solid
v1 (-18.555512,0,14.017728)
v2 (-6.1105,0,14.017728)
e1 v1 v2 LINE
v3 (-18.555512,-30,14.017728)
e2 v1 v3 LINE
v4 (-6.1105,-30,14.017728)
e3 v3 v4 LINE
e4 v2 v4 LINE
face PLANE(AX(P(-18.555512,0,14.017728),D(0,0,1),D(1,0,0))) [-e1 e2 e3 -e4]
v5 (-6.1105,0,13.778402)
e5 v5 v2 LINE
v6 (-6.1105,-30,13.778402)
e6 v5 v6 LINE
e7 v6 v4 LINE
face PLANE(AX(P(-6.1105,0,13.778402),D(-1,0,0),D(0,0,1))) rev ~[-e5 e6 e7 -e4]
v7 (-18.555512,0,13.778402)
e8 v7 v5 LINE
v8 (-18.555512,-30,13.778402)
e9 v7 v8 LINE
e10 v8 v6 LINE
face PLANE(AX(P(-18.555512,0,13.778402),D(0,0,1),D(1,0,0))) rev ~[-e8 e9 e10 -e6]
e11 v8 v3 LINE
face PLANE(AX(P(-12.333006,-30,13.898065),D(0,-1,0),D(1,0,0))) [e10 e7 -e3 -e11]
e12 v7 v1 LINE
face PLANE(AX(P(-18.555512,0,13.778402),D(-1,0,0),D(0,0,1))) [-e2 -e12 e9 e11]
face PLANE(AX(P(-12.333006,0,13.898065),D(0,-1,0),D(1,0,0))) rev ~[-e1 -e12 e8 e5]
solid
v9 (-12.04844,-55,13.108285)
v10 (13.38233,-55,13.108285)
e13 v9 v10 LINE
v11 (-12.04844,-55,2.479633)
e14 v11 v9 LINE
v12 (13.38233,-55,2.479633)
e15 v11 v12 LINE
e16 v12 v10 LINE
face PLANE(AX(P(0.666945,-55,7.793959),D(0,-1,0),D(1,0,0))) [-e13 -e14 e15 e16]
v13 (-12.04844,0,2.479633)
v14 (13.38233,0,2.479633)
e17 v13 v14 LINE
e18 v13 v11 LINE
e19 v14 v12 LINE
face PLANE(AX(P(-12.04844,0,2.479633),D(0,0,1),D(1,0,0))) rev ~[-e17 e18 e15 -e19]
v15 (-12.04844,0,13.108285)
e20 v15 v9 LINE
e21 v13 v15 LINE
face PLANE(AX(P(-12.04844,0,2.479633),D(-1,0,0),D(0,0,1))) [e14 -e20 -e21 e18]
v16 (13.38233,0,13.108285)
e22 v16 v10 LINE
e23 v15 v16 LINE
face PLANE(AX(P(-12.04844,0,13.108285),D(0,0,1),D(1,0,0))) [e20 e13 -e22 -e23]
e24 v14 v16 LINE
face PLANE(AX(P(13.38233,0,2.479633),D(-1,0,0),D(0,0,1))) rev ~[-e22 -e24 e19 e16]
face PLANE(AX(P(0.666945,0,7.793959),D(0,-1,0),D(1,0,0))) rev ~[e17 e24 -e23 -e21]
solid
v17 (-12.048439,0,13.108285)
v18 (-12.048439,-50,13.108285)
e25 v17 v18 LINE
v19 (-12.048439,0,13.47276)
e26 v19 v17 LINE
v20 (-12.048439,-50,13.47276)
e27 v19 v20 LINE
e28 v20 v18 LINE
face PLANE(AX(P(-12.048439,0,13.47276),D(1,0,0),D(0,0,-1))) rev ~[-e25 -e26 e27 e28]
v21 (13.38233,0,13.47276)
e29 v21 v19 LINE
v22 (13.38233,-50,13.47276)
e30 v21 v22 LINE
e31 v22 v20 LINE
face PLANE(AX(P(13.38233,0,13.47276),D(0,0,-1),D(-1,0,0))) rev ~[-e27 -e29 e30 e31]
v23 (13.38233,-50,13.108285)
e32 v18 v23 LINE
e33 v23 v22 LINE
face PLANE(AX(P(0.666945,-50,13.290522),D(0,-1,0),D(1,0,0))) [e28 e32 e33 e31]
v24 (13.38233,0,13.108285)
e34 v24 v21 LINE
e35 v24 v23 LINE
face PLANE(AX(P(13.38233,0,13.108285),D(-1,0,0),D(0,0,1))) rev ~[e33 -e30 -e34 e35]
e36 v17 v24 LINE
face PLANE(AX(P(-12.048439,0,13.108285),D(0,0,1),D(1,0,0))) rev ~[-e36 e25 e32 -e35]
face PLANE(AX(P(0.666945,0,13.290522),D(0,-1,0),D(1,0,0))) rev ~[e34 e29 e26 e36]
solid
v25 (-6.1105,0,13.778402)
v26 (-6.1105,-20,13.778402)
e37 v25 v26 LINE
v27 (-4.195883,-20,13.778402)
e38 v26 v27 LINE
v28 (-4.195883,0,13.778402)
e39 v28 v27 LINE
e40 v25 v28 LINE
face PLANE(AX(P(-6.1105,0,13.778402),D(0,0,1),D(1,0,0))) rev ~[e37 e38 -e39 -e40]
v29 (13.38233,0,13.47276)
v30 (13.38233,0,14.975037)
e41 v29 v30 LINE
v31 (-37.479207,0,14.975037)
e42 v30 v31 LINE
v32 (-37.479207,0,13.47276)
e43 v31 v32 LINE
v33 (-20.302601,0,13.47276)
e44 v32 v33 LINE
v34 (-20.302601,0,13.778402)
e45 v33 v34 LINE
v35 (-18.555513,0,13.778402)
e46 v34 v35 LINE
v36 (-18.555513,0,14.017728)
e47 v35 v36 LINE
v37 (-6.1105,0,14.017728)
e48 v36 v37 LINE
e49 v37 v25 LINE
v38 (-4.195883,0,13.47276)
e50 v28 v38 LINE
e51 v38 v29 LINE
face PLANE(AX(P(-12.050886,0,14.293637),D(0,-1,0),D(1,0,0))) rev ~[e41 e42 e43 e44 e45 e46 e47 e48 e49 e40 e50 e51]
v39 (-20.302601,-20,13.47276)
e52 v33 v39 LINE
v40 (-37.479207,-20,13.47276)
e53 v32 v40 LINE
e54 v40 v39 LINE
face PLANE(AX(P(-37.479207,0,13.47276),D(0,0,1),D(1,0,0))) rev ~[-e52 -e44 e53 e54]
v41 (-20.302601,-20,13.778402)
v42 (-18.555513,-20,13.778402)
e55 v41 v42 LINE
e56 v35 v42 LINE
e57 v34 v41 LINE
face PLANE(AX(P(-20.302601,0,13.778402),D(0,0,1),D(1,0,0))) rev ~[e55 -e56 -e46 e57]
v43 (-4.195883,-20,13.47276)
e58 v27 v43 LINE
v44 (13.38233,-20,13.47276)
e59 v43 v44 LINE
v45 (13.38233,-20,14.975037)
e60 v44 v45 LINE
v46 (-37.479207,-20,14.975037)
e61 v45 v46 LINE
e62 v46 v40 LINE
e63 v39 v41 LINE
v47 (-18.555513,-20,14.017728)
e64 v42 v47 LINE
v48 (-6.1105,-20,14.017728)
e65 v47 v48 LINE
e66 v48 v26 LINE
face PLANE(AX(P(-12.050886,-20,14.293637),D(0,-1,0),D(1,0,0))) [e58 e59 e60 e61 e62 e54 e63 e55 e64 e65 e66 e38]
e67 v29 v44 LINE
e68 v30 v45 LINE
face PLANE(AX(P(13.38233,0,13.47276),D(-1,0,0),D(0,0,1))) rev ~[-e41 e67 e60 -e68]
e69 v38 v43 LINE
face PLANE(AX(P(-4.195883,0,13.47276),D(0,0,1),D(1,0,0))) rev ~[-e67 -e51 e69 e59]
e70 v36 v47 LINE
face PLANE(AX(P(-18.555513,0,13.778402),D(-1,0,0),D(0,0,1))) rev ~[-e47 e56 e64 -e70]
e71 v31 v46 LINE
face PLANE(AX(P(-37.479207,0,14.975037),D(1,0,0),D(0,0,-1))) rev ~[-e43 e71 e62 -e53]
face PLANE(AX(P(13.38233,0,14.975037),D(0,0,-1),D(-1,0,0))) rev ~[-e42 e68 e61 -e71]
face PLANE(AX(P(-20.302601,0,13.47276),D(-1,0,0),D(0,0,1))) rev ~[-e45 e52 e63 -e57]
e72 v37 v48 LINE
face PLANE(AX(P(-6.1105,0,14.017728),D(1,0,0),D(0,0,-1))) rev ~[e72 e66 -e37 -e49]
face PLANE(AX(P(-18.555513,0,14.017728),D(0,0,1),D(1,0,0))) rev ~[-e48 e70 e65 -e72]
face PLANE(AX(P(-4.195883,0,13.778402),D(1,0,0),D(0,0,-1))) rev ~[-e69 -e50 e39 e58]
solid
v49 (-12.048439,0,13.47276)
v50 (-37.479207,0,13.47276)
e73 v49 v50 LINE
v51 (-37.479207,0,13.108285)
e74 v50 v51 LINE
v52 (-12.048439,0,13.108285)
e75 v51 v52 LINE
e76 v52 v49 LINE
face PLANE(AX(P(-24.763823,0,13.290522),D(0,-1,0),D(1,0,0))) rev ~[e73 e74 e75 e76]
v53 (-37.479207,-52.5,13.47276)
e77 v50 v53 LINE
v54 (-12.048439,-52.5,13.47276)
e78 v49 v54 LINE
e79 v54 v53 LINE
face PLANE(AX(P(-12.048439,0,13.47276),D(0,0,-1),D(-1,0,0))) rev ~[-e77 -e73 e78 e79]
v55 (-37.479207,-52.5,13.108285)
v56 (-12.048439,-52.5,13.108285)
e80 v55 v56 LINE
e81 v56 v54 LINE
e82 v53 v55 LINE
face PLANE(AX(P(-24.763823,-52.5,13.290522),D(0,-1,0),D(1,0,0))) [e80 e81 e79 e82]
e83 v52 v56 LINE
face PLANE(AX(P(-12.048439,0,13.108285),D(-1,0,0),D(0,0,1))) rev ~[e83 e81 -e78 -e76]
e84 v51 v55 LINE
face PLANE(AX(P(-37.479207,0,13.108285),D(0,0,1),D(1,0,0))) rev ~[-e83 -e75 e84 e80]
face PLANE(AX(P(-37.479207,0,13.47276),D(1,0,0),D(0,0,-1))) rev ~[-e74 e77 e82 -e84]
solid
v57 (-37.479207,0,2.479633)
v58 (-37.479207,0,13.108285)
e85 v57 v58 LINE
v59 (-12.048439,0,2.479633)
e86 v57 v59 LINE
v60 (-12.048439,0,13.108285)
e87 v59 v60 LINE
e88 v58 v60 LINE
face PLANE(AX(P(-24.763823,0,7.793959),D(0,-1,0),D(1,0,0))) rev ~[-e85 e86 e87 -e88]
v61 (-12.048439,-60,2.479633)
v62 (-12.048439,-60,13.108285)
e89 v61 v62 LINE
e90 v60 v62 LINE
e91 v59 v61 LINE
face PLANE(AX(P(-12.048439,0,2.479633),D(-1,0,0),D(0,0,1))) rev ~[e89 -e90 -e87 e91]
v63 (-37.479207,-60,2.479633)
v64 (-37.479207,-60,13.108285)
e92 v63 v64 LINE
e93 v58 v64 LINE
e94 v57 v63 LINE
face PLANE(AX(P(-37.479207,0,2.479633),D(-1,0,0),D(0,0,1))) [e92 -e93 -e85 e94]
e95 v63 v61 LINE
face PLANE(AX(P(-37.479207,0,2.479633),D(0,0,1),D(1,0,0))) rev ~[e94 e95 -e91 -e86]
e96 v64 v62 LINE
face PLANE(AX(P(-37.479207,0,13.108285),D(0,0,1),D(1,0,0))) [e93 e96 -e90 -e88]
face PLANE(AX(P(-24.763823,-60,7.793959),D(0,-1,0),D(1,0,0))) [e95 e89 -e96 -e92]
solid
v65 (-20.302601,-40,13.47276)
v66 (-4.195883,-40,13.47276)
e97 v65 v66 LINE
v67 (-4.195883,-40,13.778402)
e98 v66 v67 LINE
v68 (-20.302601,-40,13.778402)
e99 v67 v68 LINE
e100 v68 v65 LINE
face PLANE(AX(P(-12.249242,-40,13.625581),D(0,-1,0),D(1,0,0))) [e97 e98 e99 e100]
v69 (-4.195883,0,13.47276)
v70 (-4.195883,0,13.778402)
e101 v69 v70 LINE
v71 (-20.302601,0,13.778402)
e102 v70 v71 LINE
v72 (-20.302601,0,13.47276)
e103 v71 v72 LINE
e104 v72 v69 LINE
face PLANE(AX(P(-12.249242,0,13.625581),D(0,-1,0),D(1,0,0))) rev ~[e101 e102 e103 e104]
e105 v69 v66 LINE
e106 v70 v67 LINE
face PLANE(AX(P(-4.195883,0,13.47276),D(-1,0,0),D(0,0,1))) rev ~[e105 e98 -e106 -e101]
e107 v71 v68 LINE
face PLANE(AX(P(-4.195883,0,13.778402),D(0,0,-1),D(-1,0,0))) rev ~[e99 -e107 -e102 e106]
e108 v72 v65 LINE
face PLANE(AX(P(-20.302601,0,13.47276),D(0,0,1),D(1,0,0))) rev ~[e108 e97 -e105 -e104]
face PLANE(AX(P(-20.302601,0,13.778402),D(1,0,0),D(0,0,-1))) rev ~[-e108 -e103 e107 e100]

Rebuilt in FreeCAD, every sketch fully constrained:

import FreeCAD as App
import Part
import Sketcher

V = App.Vector
Q = App.Units.Quantity


def add_polygon(sketch, points):
    """Adds a closed chain of lines whose ends are joined by coincident constraints."""
    first, n = sketch.GeometryCount, len(points)
    for a, b in zip(points, points[1:] + points[:1]):
        sketch.addGeometry(Part.LineSegment(App.Vector(*a, 0), App.Vector(*b, 0)), False)
    for i in range(n):
        sketch.addConstraint(Sketcher.Constraint("Coincident", first + i, 2, first + (i + 1) % n, 1))

doc = App.newDocument("Part")
params = doc.addObject("Spreadsheet::Sheet", "Params")
for row, (alias, value) in enumerate([
    ("pad1_length", "60 mm"),
    ("pad2_length", "55 mm"),
    ("pad3_length", "50 mm"),
    ("pad4_length", "52.5 mm"),
    ("pad5_length", "40 mm"),
    ("pad6_length", "30 mm"),
    ("pad7_length", "20 mm"),
], start=1):
    params.set(f"A{row}", alias)
    params.set(f"B{row}", "=" + value)
    params.setAlias(f"B{row}", alias)

body = doc.addObject("PartDesign::Body", "Body")

# Sketch on XZ plane
sketch1 = body.newObject("Sketcher::SketchObject", "Sketch")
sketch1.AttachmentSupport = (doc.getObject("XZ_Plane"), [""])
sketch1.MapMode = "FlatFace"
add_polygon(sketch1, [(-37, 13), (-37, 2), (-12, 2), (-12, 13)])  # lines 0-3
sketch1.addConstraint([
    Sketcher.Constraint("Vertical", 0),
    Sketcher.Constraint("Horizontal", 1),
    Sketcher.Constraint("Vertical", 2),
    Sketcher.Constraint("Horizontal", 3),
    Sketcher.Constraint("DistanceX", 1, 1, 1, 2, Q("25.430768 mm")),
    Sketcher.Constraint("DistanceY", 0, 2, 0, 1, Q("10.628652 mm")),
    Sketcher.Constraint("DistanceX", 1, 2, -1, 1, Q("12.048439 mm")),
    Sketcher.Constraint("DistanceY", -1, 1, 0, 2, Q("2.479633 mm")),
])
pad1 = body.newObject("PartDesign::Pad", "Pad")
pad1.Profile = sketch1
pad1.setExpression("Length", "Params.pad1_length")
body2 = doc.addObject("PartDesign::Body", "Body001")

# Sketch on XZ plane
sketch2 = body2.newObject("Sketcher::SketchObject", "Sketch001")
sketch2.AttachmentSupport = (doc.getObject("XZ_Plane001"), [""])
sketch2.MapMode = "FlatFace"
add_polygon(sketch2, [(-12, 13), (-12, 2), (13, 2), (13, 13)])  # lines 0-3
sketch2.addConstraint([
    Sketcher.Constraint("Vertical", 0),
    Sketcher.Constraint("Horizontal", 1),
    Sketcher.Constraint("Vertical", 2),
    Sketcher.Constraint("Horizontal", 3),
    Sketcher.Constraint("DistanceX", 1, 1, 1, 2, Q("25.430769 mm")),
    Sketcher.Constraint("DistanceY", 0, 2, 0, 1, Q("10.628652 mm")),
    Sketcher.Constraint("DistanceX", 0, 2, -1, 1, Q("12.04844 mm")),
    Sketcher.Constraint("DistanceY", -1, 1, 0, 2, Q("2.479633 mm")),
])
pad2 = body2.newObject("PartDesign::Pad", "Pad001")
pad2.Profile = sketch2
pad2.setExpression("Length", "Params.pad2_length")
body3 = doc.addObject("PartDesign::Body", "Body002")

# Sketch on XZ plane
sketch3 = body3.newObject("Sketcher::SketchObject", "Sketch002")
sketch3.AttachmentSupport = (doc.getObject("XZ_Plane002"), [""])
sketch3.MapMode = "FlatFace"
add_polygon(sketch3, [(-12.05, 13.47), (-12.05, 13.11), (13.38, 13.11), (13.38, 13.47)])  # lines 0-3
sketch3.addConstraint([
    Sketcher.Constraint("Vertical", 0),
    Sketcher.Constraint("Horizontal", 1),
    Sketcher.Constraint("Vertical", 2),
    Sketcher.Constraint("Horizontal", 3),
    Sketcher.Constraint("DistanceX", 1, 1, 1, 2, Q("25.430769 mm")),
    Sketcher.Constraint("DistanceY", 0, 2, 0, 1, Q("0.364475 mm")),
    Sketcher.Constraint("DistanceX", 0, 2, -1, 1, Q("12.048439 mm")),
    Sketcher.Constraint("DistanceY", -1, 1, 2, 2, Q("13.47276 mm")),
])
pad3 = body3.newObject("PartDesign::Pad", "Pad002")
pad3.Profile = sketch3
pad3.setExpression("Length", "Params.pad3_length")
body4 = doc.addObject("PartDesign::Body", "Body003")

# Sketch on XZ plane
sketch4 = body4.newObject("Sketcher::SketchObject", "Sketch003")
sketch4.AttachmentSupport = (doc.getObject("XZ_Plane003"), [""])
sketch4.MapMode = "FlatFace"
add_polygon(sketch4, [(-37.48, 13.47), (-37.48, 13.11), (-12.05, 13.11), (-12.05, 13.47)])  # lines 0-3
sketch4.addConstraint([
    Sketcher.Constraint("Vertical", 0),
    Sketcher.Constraint("Horizontal", 1),
    Sketcher.Constraint("Vertical", 2),
    Sketcher.Constraint("Horizontal", 3),
    Sketcher.Constraint("DistanceX", 1, 1, 1, 2, Q("25.430768 mm")),
    Sketcher.Constraint("DistanceY", 0, 2, 0, 1, Q("0.364475 mm")),
    Sketcher.Constraint("DistanceX", 1, 2, -1, 1, Q("12.048439 mm")),
    Sketcher.Constraint("DistanceY", -1, 1, 2, 2, Q("13.47276 mm")),
])
pad4 = body4.newObject("PartDesign::Pad", "Pad003")
pad4.Profile = sketch4
pad4.setExpression("Length", "Params.pad4_length")
body5 = doc.addObject("PartDesign::Body", "Body004")

# Sketch on XZ plane
sketch5 = body5.newObject("Sketcher::SketchObject", "Sketch004")
sketch5.AttachmentSupport = (doc.getObject("XZ_Plane004"), [""])
sketch5.MapMode = "FlatFace"
add_polygon(sketch5, [(-20.3, 13.78), (-20.3, 13.47), (-4.2, 13.47), (-4.2, 13.78)])  # lines 0-3
sketch5.addConstraint([
    Sketcher.Constraint("Vertical", 0),
    Sketcher.Constraint("Horizontal", 1),
    Sketcher.Constraint("Vertical", 2),
    Sketcher.Constraint("Horizontal", 3),
    Sketcher.Constraint("DistanceX", 1, 1, 1, 2, Q("16.106718 mm")),
    Sketcher.Constraint("DistanceX", 0, 2, -1, 1, Q("20.302601 mm")),
    Sketcher.Constraint("DistanceY", 0, 2, 0, 1, Q("0.305642 mm")),
    Sketcher.Constraint("DistanceY", -1, 1, 0, 2, Q("13.47276 mm")),
])
pad5 = body5.newObject("PartDesign::Pad", "Pad004")
pad5.Profile = sketch5
pad5.setExpression("Length", "Params.pad5_length")
body6 = doc.addObject("PartDesign::Body", "Body005")

# Sketch on XZ plane
sketch6 = body6.newObject("Sketcher::SketchObject", "Sketch005")
sketch6.AttachmentSupport = (doc.getObject("XZ_Plane005"), [""])
sketch6.MapMode = "FlatFace"
add_polygon(sketch6, [(-18.56, 14.02), (-18.56, 13.78), (-6.11, 13.78), (-6.11, 14.02)])  # lines 0-3
sketch6.addConstraint([
    Sketcher.Constraint("Vertical", 0),
    Sketcher.Constraint("Horizontal", 1),
    Sketcher.Constraint("Vertical", 2),
    Sketcher.Constraint("Horizontal", 3),
    Sketcher.Constraint("DistanceX", 1, 2, -1, 1, Q("6.1105 mm")),
    Sketcher.Constraint("DistanceX", 1, 1, 1, 2, Q("12.445013 mm")),
    Sketcher.Constraint("DistanceY", 0, 2, 0, 1, Q("0.239326 mm")),
    Sketcher.Constraint("DistanceY", -1, 1, 0, 2, Q("13.778402 mm")),
])
pad6 = body6.newObject("PartDesign::Pad", "Pad005")
pad6.Profile = sketch6
pad6.setExpression("Length", "Params.pad6_length")
body7 = doc.addObject("PartDesign::Body", "Body006")

# Sketch on XZ plane
sketch7 = body7.newObject("Sketcher::SketchObject", "Sketch006")
sketch7.AttachmentSupport = (doc.getObject("XZ_Plane006"), [""])
sketch7.MapMode = "FlatFace"
add_polygon(sketch7, [(-37.48, 14.98), (-37.48, 13.47), (-20.3, 13.47), (-20.3, 13.78), (-18.56, 13.78), (-18.56, 14.02), (-6.11, 14.02), (-6.11, 13.78), (-4.2, 13.78), (-4.2, 13.47), (13.38, 13.47), (13.38, 14.98)])  # lines 0-11
sketch7.addConstraint([
    Sketcher.Constraint("Vertical", 0),
    Sketcher.Constraint("Horizontal", 1),
    Sketcher.Constraint("Vertical", 2),
    Sketcher.Constraint("Horizontal", 3),
    Sketcher.Constraint("Vertical", 4),
    Sketcher.Constraint("Horizontal", 5),
    Sketcher.Constraint("Vertical", 6),
    Sketcher.Constraint("Horizontal", 7),
    Sketcher.Constraint("Vertical", 8),
    Sketcher.Constraint("Horizontal", 9),
    Sketcher.Constraint("Vertical", 10),
    Sketcher.Constraint("Horizontal", 11),
    Sketcher.Constraint("Horizontal", 3, 2, 6, 2),
    Sketcher.Constraint("Horizontal", 1, 2, 8, 2),
    Sketcher.Constraint("DistanceX", 1, 2, -1, 1, Q("20.302601 mm")),
    Sketcher.Constraint("DistanceX", 5, 2, -1, 1, Q("6.1105 mm")),
    Sketcher.Constraint("DistanceX", 1, 1, 1, 2, Q("17.176606 mm")),
    Sketcher.Constraint("DistanceX", 3, 1, 3, 2, Q("1.747088 mm")),
    Sketcher.Constraint("DistanceX", 7, 1, 7, 2, Q("1.914617 mm")),
    Sketcher.Constraint("DistanceX", 9, 1, 9, 2, Q("17.578213 mm")),
    Sketcher.Constraint("DistanceY", 0, 2, 0, 1, Q("1.502277 mm")),
    Sketcher.Constraint("DistanceY", 2, 1, 2, 2, Q("0.305642 mm")),
    Sketcher.Constraint("DistanceY", 4, 1, 4, 2, Q("0.239326 mm")),
    Sketcher.Constraint("DistanceY", -1, 1, 0, 2, Q("13.47276 mm")),
])
pad7 = body7.newObject("PartDesign::Pad", "Pad006")
pad7.Profile = sketch7
pad7.setExpression("Length", "Params.pad7_length")

doc.recompute()
